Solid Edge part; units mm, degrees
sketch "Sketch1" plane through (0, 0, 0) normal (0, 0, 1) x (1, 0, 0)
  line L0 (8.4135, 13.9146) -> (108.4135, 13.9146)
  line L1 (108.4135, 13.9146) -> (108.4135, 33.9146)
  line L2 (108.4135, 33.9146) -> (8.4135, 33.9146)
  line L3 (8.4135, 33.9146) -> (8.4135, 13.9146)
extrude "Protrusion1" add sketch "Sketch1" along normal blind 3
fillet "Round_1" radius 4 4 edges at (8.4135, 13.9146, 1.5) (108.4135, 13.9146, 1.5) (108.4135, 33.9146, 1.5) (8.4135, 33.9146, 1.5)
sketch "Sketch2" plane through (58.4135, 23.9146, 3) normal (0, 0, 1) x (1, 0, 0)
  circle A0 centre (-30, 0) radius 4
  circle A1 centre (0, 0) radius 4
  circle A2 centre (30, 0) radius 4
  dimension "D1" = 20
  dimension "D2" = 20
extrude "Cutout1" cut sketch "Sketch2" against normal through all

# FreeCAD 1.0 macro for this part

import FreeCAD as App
import Part
import Sketcher

V = App.Vector
Q = App.Units.Quantity


def edges_at(feature, points):
    """Names of the edges that pass closest to the given points."""
    edges = feature.Shape.Edges
    near = lambda p: min(range(len(edges)), key=lambda i: edges[i].distToShape(Part.Vertex(*p))[0])
    return sorted({f"Edge{near(p) + 1}" for p in points})


def add_polygon(sketch, points):
    """Adds a closed chain of lines whose ends are joined by coincident constraints."""
    first, n = sketch.GeometryCount, len(points)
    for a, b in zip(points, points[1:] + points[:1]):
        sketch.addGeometry(Part.LineSegment(App.Vector(*a, 0), App.Vector(*b, 0)), False)
    for i in range(n):
        sketch.addConstraint(Sketcher.Constraint("Coincident", first + i, 2, first + (i + 1) % n, 1))

doc = App.newDocument("Part")
body = doc.addObject("PartDesign::Body", "Body")

sketch1 = body.newObject("Sketcher::SketchObject", "Sketch")
sketch1.AttachmentSupport = (doc.getObject("XY_Plane"), [""])
sketch1.MapMode = "FlatFace"
add_polygon(sketch1, [(8, 34), (8, 14), (108, 14), (108, 34)])
sketch1.addConstraint([
    Sketcher.Constraint("Vertical", 0),
    Sketcher.Constraint("Horizontal", 1),
    Sketcher.Constraint("Vertical", 2),
    Sketcher.Constraint("Horizontal", 3),
    Sketcher.Constraint("DistanceX", 1, 1, 1, 2, Q("100 mm")),
    Sketcher.Constraint("DistanceY", 0, 2, 0, 1, Q("20 mm")),
    Sketcher.Constraint("DistanceX", -1, 1, 0, 2, Q("8.4135 mm")),
    Sketcher.Constraint("DistanceY", -1, 1, 0, 2, Q("13.9146 mm")),
])
pad1 = body.newObject("PartDesign::Pad", "Pad")
pad1.Profile = sketch1
pad1.Length = 3
doc.recompute()

fillet = body.newObject("PartDesign::Fillet", "Fillet")
fillet.Base = (pad1, edges_at(pad1, [
    (8.414, 13.915, 1.5),
    (108.413, 13.915, 1.5),
    (108.413, 33.915, 1.5),
    (8.414, 33.915, 1.5),
]))
fillet.Radius = 4

sketch2 = body.newObject("Sketcher::SketchObject", "Sketch001")
sketch2.AttachmentSupport = (doc.getObject("XY_Plane"), [""])
sketch2.MapMode = "FlatFace"
sketch2.AttachmentOffset = App.Placement(V(0, 0, 3), App.Rotation())
sketch2.addGeometry([
    Part.Circle(V(28.4, 23.9, 0), V(0, 0, 1), 4),
    Part.Circle(V(58.4, 23.9, 0), V(0, 0, 1), 4),
    Part.Circle(V(88.4, 23.9, 0), V(0, 0, 1), 4),
], False)
sketch2.addConstraint([
    Sketcher.Constraint("Equal", 0, 1),
    Sketcher.Constraint("Equal", 1, 2),
    Sketcher.Constraint("Horizontal", 0, 3, 1, 3),
    Sketcher.Constraint("Horizontal", 1, 3, 2, 3),
    Sketcher.Constraint("Diameter", 0, Q("8 mm")),
    Sketcher.Constraint("DistanceX", 0, 3, 1, 3, Q("30 mm")),
    Sketcher.Constraint("DistanceX", 1, 3, 2, 3, Q("30 mm")),
    Sketcher.Constraint("DistanceX", -1, 1, 0, 3, Q("28.4135 mm")),
    Sketcher.Constraint("DistanceY", -1, 1, 0, 3, Q("23.9146 mm")),
])
pocket1 = body.newObject("PartDesign::Pocket", "Pocket")
pocket1.Profile = sketch2
pocket1.Type = "ThroughAll"

doc.recompute()
